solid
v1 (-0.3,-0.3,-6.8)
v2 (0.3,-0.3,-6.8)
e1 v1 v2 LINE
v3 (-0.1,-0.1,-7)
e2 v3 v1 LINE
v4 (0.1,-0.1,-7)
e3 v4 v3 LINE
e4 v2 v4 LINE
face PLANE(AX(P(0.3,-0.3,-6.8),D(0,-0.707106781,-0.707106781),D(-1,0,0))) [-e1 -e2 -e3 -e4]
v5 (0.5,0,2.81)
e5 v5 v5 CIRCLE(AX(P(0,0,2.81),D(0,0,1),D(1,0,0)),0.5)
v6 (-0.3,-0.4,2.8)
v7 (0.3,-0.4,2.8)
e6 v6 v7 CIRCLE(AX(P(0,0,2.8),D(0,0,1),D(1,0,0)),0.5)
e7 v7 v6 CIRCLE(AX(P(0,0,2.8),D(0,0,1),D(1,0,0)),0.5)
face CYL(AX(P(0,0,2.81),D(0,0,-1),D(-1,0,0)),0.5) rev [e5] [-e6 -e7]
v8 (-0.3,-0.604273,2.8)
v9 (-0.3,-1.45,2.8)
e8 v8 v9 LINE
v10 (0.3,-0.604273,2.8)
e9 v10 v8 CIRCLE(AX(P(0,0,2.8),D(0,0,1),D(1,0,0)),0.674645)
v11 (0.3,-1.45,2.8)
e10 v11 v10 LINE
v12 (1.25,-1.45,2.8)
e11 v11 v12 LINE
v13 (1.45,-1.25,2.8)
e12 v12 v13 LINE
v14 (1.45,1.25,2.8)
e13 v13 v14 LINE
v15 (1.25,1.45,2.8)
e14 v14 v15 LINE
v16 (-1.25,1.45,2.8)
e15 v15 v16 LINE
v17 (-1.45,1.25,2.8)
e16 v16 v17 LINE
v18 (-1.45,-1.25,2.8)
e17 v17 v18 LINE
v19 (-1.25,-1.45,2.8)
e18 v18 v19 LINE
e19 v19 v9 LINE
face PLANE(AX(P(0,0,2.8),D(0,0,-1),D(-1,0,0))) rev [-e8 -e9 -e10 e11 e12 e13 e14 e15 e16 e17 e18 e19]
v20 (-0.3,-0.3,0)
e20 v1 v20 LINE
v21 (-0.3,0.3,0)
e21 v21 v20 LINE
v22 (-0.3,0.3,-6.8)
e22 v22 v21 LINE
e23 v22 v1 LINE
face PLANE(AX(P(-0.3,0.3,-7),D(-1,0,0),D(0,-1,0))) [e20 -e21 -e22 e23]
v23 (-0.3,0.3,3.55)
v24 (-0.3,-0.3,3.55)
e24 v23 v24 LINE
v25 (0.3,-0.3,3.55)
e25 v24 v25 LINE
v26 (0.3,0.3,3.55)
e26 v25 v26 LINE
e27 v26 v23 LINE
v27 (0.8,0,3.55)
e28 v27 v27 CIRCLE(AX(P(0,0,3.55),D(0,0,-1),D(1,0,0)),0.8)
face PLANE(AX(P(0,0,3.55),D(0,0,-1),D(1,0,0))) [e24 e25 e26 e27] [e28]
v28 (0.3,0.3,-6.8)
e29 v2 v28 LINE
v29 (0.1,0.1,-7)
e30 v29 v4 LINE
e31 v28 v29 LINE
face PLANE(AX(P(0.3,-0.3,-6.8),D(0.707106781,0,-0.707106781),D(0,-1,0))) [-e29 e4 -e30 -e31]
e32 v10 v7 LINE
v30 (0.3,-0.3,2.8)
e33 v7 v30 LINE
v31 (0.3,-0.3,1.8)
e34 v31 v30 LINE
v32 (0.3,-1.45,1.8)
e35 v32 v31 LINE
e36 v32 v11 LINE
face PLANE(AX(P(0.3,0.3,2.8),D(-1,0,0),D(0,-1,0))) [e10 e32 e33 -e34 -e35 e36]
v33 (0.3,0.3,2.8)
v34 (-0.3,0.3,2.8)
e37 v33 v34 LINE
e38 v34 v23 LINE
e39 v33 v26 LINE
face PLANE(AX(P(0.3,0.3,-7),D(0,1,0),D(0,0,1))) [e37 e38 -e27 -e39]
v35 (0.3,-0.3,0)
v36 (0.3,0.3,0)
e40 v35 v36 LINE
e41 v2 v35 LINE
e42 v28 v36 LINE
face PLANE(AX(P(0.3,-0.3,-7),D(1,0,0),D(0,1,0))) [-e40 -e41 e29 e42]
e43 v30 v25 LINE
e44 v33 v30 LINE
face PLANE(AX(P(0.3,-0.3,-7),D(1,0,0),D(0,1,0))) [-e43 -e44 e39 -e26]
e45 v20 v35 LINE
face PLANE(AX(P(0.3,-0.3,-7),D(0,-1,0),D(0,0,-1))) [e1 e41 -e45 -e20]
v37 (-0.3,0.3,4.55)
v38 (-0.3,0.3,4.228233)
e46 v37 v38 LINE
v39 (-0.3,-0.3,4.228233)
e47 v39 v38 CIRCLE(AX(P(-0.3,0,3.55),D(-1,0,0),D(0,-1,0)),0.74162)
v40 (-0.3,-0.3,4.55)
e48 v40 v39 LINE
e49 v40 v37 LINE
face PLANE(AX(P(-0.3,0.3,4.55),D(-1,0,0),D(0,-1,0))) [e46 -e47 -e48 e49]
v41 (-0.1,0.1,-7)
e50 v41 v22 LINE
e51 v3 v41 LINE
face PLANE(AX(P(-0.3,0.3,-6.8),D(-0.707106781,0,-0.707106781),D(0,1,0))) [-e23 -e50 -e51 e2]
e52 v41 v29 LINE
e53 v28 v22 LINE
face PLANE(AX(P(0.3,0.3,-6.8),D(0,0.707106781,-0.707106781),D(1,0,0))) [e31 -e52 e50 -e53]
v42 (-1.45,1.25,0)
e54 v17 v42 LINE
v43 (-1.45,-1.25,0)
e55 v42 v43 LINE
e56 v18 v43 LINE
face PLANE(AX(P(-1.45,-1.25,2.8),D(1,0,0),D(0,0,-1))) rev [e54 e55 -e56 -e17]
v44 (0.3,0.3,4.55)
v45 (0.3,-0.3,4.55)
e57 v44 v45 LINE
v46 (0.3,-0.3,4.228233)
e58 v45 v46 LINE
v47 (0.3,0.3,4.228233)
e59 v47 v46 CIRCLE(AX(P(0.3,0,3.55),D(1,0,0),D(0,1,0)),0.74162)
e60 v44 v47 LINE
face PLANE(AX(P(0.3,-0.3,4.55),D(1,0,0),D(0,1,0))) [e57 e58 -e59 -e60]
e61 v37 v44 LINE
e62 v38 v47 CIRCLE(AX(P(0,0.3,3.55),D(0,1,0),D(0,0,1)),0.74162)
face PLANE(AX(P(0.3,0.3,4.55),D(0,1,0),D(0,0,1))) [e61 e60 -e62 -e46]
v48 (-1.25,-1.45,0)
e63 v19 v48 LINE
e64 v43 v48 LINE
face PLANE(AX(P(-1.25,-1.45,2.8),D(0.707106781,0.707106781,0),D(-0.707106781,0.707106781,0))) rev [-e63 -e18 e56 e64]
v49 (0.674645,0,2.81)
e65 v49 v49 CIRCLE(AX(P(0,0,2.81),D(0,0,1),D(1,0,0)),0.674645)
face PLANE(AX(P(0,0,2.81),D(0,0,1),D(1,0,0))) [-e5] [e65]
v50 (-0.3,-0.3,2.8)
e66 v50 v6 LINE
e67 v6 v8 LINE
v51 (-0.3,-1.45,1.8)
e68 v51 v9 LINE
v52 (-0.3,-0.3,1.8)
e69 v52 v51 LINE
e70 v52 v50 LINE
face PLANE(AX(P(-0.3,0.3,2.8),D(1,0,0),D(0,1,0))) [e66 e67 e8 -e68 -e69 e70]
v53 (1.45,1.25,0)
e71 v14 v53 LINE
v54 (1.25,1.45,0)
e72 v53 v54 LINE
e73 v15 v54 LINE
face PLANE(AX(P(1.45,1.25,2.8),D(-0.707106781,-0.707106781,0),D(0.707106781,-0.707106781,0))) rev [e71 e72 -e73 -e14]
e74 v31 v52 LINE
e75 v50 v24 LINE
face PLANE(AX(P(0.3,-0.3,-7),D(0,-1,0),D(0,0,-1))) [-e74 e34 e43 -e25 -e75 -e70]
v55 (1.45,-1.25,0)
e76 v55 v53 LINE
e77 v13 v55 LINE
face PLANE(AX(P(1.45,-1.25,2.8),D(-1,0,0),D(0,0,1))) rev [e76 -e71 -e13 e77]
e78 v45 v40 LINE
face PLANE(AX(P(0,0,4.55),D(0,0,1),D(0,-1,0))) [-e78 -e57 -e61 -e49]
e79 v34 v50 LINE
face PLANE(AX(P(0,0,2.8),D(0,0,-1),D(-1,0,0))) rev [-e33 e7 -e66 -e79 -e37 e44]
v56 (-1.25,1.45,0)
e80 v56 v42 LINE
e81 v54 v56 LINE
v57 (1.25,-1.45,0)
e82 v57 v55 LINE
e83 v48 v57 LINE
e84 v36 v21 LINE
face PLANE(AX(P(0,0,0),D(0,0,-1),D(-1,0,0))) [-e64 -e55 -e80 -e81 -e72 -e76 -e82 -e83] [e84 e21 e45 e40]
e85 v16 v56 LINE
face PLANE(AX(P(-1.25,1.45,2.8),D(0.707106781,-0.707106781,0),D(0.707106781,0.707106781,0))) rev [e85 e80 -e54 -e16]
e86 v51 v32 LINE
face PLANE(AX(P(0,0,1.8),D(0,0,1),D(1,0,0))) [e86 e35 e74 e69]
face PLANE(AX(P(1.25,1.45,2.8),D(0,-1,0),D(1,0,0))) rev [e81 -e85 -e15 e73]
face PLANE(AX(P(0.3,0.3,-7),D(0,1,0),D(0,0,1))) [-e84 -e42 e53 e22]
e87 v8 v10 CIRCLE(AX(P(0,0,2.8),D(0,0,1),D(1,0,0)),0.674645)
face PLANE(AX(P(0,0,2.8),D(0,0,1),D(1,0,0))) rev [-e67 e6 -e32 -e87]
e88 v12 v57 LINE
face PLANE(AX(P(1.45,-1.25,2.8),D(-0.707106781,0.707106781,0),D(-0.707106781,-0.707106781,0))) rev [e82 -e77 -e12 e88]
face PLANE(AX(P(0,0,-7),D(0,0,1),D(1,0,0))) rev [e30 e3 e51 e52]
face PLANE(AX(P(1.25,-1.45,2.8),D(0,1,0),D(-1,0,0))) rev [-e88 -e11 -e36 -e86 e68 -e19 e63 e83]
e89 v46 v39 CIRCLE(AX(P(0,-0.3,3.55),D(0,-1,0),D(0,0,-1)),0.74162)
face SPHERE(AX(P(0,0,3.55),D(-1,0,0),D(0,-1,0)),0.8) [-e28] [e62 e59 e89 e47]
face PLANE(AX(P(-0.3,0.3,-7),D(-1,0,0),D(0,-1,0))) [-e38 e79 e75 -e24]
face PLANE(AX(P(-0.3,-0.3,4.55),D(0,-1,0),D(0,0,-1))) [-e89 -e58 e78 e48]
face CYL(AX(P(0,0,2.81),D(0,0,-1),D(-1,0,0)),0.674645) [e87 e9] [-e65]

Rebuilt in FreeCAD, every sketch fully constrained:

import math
import FreeCAD as App
import Part
import Sketcher

V = App.Vector
Q = App.Units.Quantity


def edges_at(feature, points):
    """Names of the edges that pass closest to the given points."""
    edges = feature.Shape.Edges
    near = lambda p: min(range(len(edges)), key=lambda i: edges[i].distToShape(Part.Vertex(*p))[0])
    return sorted({f"Edge{near(p) + 1}" for p in points})

doc = App.newDocument("Part")
body = doc.addObject("PartDesign::Body", "Body")

# Sketch on XY plane
sketch1 = body.newObject("Sketcher::SketchObject", "Sketch")
sketch1.AttachmentSupport = (doc.getObject("XY_Plane"), [""])
sketch1.MapMode = "FlatFace"
sketch1.addGeometry(Part.LineSegment(V(-1.25, 1.45, 0), V(-1.45, 1.25, 0)), False)
sketch1.addGeometry(Part.LineSegment(V(-1.45, 1.25, 0), V(-1.45, -1.25, 0)), False)
sketch1.addGeometry(Part.LineSegment(V(-1.45, -1.25, 0), V(-1.25, -1.45, 0)), False)
sketch1.addGeometry(Part.LineSegment(V(-1.25, -1.45, 0), V(1.25, -1.45, 0)), False)
sketch1.addGeometry(Part.LineSegment(V(1.25, -1.45, 0), V(1.45, -1.25, 0)), False)
sketch1.addGeometry(Part.LineSegment(V(1.45, -1.25, 0), V(1.45, 1.25, 0)), False)
sketch1.addGeometry(Part.LineSegment(V(1.45, 1.25, 0), V(1.25, 1.45, 0)), False)
sketch1.addGeometry(Part.LineSegment(V(1.25, 1.45, 0), V(-1.25, 1.45, 0)), False)
sketch1.addGeometry(Part.LineSegment(V(0.3, -0.3, 0), V(-0.3, -0.3, 0)), False)
sketch1.addGeometry(Part.LineSegment(V(-0.3, -0.3, 0), V(-0.3, 0.3, 0)), False)
sketch1.addGeometry(Part.LineSegment(V(-0.3, 0.3, 0), V(0.3, 0.3, 0)), False)
sketch1.addGeometry(Part.LineSegment(V(0.3, 0.3, 0), V(0.3, -0.3, 0)), False)
sketch1.addConstraint(Sketcher.Constraint("Coincident", 0, 2, 1, 1))
sketch1.addConstraint(Sketcher.Constraint("Coincident", 1, 2, 2, 1))
sketch1.addConstraint(Sketcher.Constraint("Coincident", 2, 2, 3, 1))
sketch1.addConstraint(Sketcher.Constraint("Coincident", 3, 2, 4, 1))
sketch1.addConstraint(Sketcher.Constraint("Coincident", 4, 2, 5, 1))
sketch1.addConstraint(Sketcher.Constraint("Coincident", 5, 2, 6, 1))
sketch1.addConstraint(Sketcher.Constraint("Coincident", 6, 2, 7, 1))
sketch1.addConstraint(Sketcher.Constraint("Coincident", 7, 2, 0, 1))
sketch1.addConstraint(Sketcher.Constraint("Coincident", 8, 2, 9, 1))
sketch1.addConstraint(Sketcher.Constraint("Coincident", 9, 2, 10, 1))
sketch1.addConstraint(Sketcher.Constraint("Coincident", 10, 2, 11, 1))
sketch1.addConstraint(Sketcher.Constraint("Coincident", 11, 2, 8, 1))
sketch1.addConstraint(Sketcher.Constraint("Vertical", 1))
sketch1.addConstraint(Sketcher.Constraint("Horizontal", 3))
sketch1.addConstraint(Sketcher.Constraint("Vertical", 5))
sketch1.addConstraint(Sketcher.Constraint("Horizontal", 7))
sketch1.addConstraint(Sketcher.Constraint("Horizontal", 8))
sketch1.addConstraint(Sketcher.Constraint("Vertical", 9))
sketch1.addConstraint(Sketcher.Constraint("Horizontal", 10))
sketch1.addConstraint(Sketcher.Constraint("Vertical", 11))
sketch1.addConstraint(Sketcher.Constraint("Symmetric", 0, 2, 4, 2, -1, 1))
sketch1.addConstraint(Sketcher.Constraint("Symmetric", 2, 2, 6, 2, -1, 1))
sketch1.addConstraint(Sketcher.Constraint("Symmetric", 8, 2, 10, 2, -1, 1))
sketch1.addConstraint(Sketcher.Constraint("Perpendicular", 0, 2))
sketch1.addConstraint(Sketcher.Constraint("Perpendicular", 2, 4))
sketch1.addConstraint(Sketcher.Constraint("Perpendicular", 4, 6))
sketch1.addConstraint(Sketcher.Constraint("Horizontal", 1, 2, 4, 2))
sketch1.addConstraint(Sketcher.Constraint("Vertical", 3, 2, 6, 2))
sketch1.addConstraint(Sketcher.Constraint("Equal", 7, 1))
sketch1.addConstraint(Sketcher.Constraint("Equal", 10, 9))
sketch1.addConstraint(Sketcher.Constraint("DistanceX", 3, 1, 3, 2, Q("2.5 mm")))
sketch1.addConstraint(Sketcher.Constraint("DistanceX", 8, 2, 8, 1, Q("0.6 mm")))
sketch1.addConstraint(Sketcher.Constraint("DistanceX", 1, 2, 2, 2, Q("0.2 mm")))
pad1 = body.newObject("PartDesign::Pad", "Pad")
pad1.Profile = sketch1
pad1.Length = 2.8

# Sketch on XY plane
sketch2 = body.newObject("Sketcher::SketchObject", "Sketch001")
sketch2.AttachmentSupport = (doc.getObject("XY_Plane"), [""])
sketch2.MapMode = "FlatFace"
sketch2.AttachmentOffset = App.Placement(V(0, 0, 2.8), App.Rotation())
sketch2.addGeometry(Part.LineSegment(V(-0.3, -0.3, 0), V(-0.3, -1.4, 0)), False)
sketch2.addGeometry(Part.LineSegment(V(-0.3, -1.4, 0), V(0.3, -1.4, 0)), False)
sketch2.addGeometry(Part.LineSegment(V(0.3, -1.4, 0), V(0.3, -0.3, 0)), False)
sketch2.addGeometry(Part.LineSegment(V(0.3, -0.3, 0), V(-0.3, -0.3, 0)), False)
sketch2.addConstraint(Sketcher.Constraint("Coincident", 0, 2, 1, 1))
sketch2.addConstraint(Sketcher.Constraint("Coincident", 1, 2, 2, 1))
sketch2.addConstraint(Sketcher.Constraint("Coincident", 2, 2, 3, 1))
sketch2.addConstraint(Sketcher.Constraint("Coincident", 3, 2, 0, 1))
sketch2.addConstraint(Sketcher.Constraint("Vertical", 0))
sketch2.addConstraint(Sketcher.Constraint("Horizontal", 1))
sketch2.addConstraint(Sketcher.Constraint("Vertical", 2))
sketch2.addConstraint(Sketcher.Constraint("Horizontal", 3))
sketch2.addConstraint(Sketcher.Constraint("DistanceX", 1, 1, 1, 2, Q("0.6 mm")))
sketch2.addConstraint(Sketcher.Constraint("DistanceY", 0, 2, 0, 1, Q("1.15 mm")))
sketch2.addConstraint(Sketcher.Constraint("DistanceX", 0, 2, -1, 1, Q("0.3 mm")))
sketch2.addConstraint(Sketcher.Constraint("DistanceY", 2, 2, -1, 1, Q("0.3 mm")))
pocket1 = body.newObject("PartDesign::Pocket", "Pocket")
pocket1.Profile = sketch2
pocket1.Length = 1

# Sketch on XY plane
sketch3 = body.newObject("Sketcher::SketchObject", "Sketch002")
sketch3.AttachmentSupport = (doc.getObject("XY_Plane"), [""])
sketch3.MapMode = "FlatFace"
sketch3.AttachmentOffset = App.Placement(V(0, 0, 2.8), App.Rotation())
sketch3.addGeometry(Part.LineSegment(V(-0.3, 0.3, 0), V(-0.3, -0.3, 0)), False)
sketch3.addGeometry(Part.LineSegment(V(-0.3, -0.3, 0), V(0.3, -0.3, 0)), False)
sketch3.addGeometry(Part.LineSegment(V(0.3, -0.3, 0), V(0.3, 0.3, 0)), False)
sketch3.addGeometry(Part.LineSegment(V(0.3, 0.3, 0), V(-0.3, 0.3, 0)), False)
sketch3.addConstraint(Sketcher.Constraint("Coincident", 0, 2, 1, 1))
sketch3.addConstraint(Sketcher.Constraint("Coincident", 1, 2, 2, 1))
sketch3.addConstraint(Sketcher.Constraint("Coincident", 2, 2, 3, 1))
sketch3.addConstraint(Sketcher.Constraint("Coincident", 3, 2, 0, 1))
sketch3.addConstraint(Sketcher.Constraint("Vertical", 0))
sketch3.addConstraint(Sketcher.Constraint("Horizontal", 1))
sketch3.addConstraint(Sketcher.Constraint("Vertical", 2))
sketch3.addConstraint(Sketcher.Constraint("Horizontal", 3))
sketch3.addConstraint(Sketcher.Constraint("Symmetric", 0, 2, 2, 2, -1, 1))
sketch3.addConstraint(Sketcher.Constraint("Equal", 3, 0))
sketch3.addConstraint(Sketcher.Constraint("DistanceX", 1, 1, 1, 2, Q("0.6 mm")))
pad2 = body.newObject("PartDesign::Pad", "Pad001")
pad2.Profile = sketch3
pad2.Type = "TwoLengths"
pad2.Length = 0.75
pad2.Length2 = 9.8
doc.recompute()

chamfer = body.newObject("PartDesign::Chamfer", "Chamfer")
chamfer.Base = (pad2, edges_at(pad2, [
    (0, -0.3, -7),
    (0.3, 0, -7),
    (-0.3, 0, -7),
    (0, 0.3, -7),
]))
chamfer.Size = 0.2

# Sketch on XY plane
sketch4 = body.newObject("Sketcher::SketchObject", "Sketch003")
sketch4.AttachmentSupport = (doc.getObject("XY_Plane"), [""])
sketch4.MapMode = "FlatFace"
sketch4.AttachmentOffset = App.Placement(V(0, 0, 2.8), App.Rotation())
sketch4.addGeometry(Part.Circle(V(0, 0, 0), V(0, 0, 1), 0.7), False)
sketch4.addGeometry(Part.Circle(V(0, 0, 0), V(0, 0, 1), 0.5), False)
sketch4.addConstraint(Sketcher.Constraint("Coincident", 0, 3, -1, 1))
sketch4.addConstraint(Sketcher.Constraint("Coincident", 1, 3, -1, 1))
sketch4.addConstraint(Sketcher.Constraint("Diameter", 1, Q("1 mm")))
sketch4.addConstraint(Sketcher.Constraint("Diameter", 0, Q("1.34929 mm")))
pad3 = body.newObject("PartDesign::Pad", "Pad002")
pad3.Profile = sketch4
pad3.Length = 0.01

# Sketch on XY plane
sketch5 = body.newObject("Sketcher::SketchObject", "Sketch004")
sketch5.AttachmentSupport = (doc.getObject("XY_Plane"), [""])
sketch5.MapMode = "FlatFace"
sketch5.AttachmentOffset = App.Placement(V(0, 0, 3.55), App.Rotation())
sketch5.addGeometry(Part.LineSegment(V(-0.8, 0, 0), V(0.8, 0, 0)), False)
sketch5.addGeometry(Part.ArcOfCircle(Part.Circle(V(0, 0, 0), V(0, 0, 1), 0.8), math.radians(0), math.radians(180)), False)
sketch5.addConstraint(Sketcher.Constraint("Coincident", 0, 1, 1, 2))
sketch5.addConstraint(Sketcher.Constraint("Coincident", 1, 1, 0, 2))
sketch5.addConstraint(Sketcher.Constraint("Horizontal", 0))
sketch5.addConstraint(Sketcher.Constraint("Coincident", 1, 3, -1, 1))
sketch5.addConstraint(Sketcher.Constraint("PointOnObject", 0, 1, -1))
sketch5.addConstraint(Sketcher.Constraint("Radius", 1, Q("0.8 mm")))
revolution = body.newObject("PartDesign::Revolution", "Revolution")
revolution.Profile = sketch5
revolution.ReferenceAxis = (sketch5, ["H_Axis"])
revolution.Angle = 180

# Sketch on XY plane
sketch6 = body.newObject("Sketcher::SketchObject", "Sketch005")
sketch6.AttachmentSupport = (doc.getObject("XY_Plane"), [""])
sketch6.MapMode = "FlatFace"
sketch6.AttachmentOffset = App.Placement(V(0, 0, 3.55), App.Rotation())
sketch6.addGeometry(Part.LineSegment(V(0.3, 0.3, 0), V(0.3, -0.3, 0)), False)
sketch6.addGeometry(Part.LineSegment(V(0.3, -0.3, 0), V(-0.3, -0.3, 0)), False)
sketch6.addGeometry(Part.LineSegment(V(-0.3, -0.3, 0), V(-0.3, 0.3, 0)), False)
sketch6.addGeometry(Part.LineSegment(V(-0.3, 0.3, 0), V(0.3, 0.3, 0)), False)
sketch6.addConstraint(Sketcher.Constraint("Coincident", 0, 2, 1, 1))
sketch6.addConstraint(Sketcher.Constraint("Coincident", 1, 2, 2, 1))
sketch6.addConstraint(Sketcher.Constraint("Coincident", 2, 2, 3, 1))
sketch6.addConstraint(Sketcher.Constraint("Coincident", 3, 2, 0, 1))
sketch6.addConstraint(Sketcher.Constraint("Vertical", 0))
sketch6.addConstraint(Sketcher.Constraint("Horizontal", 1))
sketch6.addConstraint(Sketcher.Constraint("Vertical", 2))
sketch6.addConstraint(Sketcher.Constraint("Horizontal", 3))
sketch6.addConstraint(Sketcher.Constraint("Symmetric", 0, 2, 2, 2, -1, 1))
sketch6.addConstraint(Sketcher.Constraint("Equal", 3, 0))
sketch6.addConstraint(Sketcher.Constraint("DistanceX", 1, 2, 1, 1, Q("0.6 mm")))
pad4 = body.newObject("PartDesign::Pad", "Pad003")
pad4.Profile = sketch6
pad4.Length = 1

doc.recompute()
